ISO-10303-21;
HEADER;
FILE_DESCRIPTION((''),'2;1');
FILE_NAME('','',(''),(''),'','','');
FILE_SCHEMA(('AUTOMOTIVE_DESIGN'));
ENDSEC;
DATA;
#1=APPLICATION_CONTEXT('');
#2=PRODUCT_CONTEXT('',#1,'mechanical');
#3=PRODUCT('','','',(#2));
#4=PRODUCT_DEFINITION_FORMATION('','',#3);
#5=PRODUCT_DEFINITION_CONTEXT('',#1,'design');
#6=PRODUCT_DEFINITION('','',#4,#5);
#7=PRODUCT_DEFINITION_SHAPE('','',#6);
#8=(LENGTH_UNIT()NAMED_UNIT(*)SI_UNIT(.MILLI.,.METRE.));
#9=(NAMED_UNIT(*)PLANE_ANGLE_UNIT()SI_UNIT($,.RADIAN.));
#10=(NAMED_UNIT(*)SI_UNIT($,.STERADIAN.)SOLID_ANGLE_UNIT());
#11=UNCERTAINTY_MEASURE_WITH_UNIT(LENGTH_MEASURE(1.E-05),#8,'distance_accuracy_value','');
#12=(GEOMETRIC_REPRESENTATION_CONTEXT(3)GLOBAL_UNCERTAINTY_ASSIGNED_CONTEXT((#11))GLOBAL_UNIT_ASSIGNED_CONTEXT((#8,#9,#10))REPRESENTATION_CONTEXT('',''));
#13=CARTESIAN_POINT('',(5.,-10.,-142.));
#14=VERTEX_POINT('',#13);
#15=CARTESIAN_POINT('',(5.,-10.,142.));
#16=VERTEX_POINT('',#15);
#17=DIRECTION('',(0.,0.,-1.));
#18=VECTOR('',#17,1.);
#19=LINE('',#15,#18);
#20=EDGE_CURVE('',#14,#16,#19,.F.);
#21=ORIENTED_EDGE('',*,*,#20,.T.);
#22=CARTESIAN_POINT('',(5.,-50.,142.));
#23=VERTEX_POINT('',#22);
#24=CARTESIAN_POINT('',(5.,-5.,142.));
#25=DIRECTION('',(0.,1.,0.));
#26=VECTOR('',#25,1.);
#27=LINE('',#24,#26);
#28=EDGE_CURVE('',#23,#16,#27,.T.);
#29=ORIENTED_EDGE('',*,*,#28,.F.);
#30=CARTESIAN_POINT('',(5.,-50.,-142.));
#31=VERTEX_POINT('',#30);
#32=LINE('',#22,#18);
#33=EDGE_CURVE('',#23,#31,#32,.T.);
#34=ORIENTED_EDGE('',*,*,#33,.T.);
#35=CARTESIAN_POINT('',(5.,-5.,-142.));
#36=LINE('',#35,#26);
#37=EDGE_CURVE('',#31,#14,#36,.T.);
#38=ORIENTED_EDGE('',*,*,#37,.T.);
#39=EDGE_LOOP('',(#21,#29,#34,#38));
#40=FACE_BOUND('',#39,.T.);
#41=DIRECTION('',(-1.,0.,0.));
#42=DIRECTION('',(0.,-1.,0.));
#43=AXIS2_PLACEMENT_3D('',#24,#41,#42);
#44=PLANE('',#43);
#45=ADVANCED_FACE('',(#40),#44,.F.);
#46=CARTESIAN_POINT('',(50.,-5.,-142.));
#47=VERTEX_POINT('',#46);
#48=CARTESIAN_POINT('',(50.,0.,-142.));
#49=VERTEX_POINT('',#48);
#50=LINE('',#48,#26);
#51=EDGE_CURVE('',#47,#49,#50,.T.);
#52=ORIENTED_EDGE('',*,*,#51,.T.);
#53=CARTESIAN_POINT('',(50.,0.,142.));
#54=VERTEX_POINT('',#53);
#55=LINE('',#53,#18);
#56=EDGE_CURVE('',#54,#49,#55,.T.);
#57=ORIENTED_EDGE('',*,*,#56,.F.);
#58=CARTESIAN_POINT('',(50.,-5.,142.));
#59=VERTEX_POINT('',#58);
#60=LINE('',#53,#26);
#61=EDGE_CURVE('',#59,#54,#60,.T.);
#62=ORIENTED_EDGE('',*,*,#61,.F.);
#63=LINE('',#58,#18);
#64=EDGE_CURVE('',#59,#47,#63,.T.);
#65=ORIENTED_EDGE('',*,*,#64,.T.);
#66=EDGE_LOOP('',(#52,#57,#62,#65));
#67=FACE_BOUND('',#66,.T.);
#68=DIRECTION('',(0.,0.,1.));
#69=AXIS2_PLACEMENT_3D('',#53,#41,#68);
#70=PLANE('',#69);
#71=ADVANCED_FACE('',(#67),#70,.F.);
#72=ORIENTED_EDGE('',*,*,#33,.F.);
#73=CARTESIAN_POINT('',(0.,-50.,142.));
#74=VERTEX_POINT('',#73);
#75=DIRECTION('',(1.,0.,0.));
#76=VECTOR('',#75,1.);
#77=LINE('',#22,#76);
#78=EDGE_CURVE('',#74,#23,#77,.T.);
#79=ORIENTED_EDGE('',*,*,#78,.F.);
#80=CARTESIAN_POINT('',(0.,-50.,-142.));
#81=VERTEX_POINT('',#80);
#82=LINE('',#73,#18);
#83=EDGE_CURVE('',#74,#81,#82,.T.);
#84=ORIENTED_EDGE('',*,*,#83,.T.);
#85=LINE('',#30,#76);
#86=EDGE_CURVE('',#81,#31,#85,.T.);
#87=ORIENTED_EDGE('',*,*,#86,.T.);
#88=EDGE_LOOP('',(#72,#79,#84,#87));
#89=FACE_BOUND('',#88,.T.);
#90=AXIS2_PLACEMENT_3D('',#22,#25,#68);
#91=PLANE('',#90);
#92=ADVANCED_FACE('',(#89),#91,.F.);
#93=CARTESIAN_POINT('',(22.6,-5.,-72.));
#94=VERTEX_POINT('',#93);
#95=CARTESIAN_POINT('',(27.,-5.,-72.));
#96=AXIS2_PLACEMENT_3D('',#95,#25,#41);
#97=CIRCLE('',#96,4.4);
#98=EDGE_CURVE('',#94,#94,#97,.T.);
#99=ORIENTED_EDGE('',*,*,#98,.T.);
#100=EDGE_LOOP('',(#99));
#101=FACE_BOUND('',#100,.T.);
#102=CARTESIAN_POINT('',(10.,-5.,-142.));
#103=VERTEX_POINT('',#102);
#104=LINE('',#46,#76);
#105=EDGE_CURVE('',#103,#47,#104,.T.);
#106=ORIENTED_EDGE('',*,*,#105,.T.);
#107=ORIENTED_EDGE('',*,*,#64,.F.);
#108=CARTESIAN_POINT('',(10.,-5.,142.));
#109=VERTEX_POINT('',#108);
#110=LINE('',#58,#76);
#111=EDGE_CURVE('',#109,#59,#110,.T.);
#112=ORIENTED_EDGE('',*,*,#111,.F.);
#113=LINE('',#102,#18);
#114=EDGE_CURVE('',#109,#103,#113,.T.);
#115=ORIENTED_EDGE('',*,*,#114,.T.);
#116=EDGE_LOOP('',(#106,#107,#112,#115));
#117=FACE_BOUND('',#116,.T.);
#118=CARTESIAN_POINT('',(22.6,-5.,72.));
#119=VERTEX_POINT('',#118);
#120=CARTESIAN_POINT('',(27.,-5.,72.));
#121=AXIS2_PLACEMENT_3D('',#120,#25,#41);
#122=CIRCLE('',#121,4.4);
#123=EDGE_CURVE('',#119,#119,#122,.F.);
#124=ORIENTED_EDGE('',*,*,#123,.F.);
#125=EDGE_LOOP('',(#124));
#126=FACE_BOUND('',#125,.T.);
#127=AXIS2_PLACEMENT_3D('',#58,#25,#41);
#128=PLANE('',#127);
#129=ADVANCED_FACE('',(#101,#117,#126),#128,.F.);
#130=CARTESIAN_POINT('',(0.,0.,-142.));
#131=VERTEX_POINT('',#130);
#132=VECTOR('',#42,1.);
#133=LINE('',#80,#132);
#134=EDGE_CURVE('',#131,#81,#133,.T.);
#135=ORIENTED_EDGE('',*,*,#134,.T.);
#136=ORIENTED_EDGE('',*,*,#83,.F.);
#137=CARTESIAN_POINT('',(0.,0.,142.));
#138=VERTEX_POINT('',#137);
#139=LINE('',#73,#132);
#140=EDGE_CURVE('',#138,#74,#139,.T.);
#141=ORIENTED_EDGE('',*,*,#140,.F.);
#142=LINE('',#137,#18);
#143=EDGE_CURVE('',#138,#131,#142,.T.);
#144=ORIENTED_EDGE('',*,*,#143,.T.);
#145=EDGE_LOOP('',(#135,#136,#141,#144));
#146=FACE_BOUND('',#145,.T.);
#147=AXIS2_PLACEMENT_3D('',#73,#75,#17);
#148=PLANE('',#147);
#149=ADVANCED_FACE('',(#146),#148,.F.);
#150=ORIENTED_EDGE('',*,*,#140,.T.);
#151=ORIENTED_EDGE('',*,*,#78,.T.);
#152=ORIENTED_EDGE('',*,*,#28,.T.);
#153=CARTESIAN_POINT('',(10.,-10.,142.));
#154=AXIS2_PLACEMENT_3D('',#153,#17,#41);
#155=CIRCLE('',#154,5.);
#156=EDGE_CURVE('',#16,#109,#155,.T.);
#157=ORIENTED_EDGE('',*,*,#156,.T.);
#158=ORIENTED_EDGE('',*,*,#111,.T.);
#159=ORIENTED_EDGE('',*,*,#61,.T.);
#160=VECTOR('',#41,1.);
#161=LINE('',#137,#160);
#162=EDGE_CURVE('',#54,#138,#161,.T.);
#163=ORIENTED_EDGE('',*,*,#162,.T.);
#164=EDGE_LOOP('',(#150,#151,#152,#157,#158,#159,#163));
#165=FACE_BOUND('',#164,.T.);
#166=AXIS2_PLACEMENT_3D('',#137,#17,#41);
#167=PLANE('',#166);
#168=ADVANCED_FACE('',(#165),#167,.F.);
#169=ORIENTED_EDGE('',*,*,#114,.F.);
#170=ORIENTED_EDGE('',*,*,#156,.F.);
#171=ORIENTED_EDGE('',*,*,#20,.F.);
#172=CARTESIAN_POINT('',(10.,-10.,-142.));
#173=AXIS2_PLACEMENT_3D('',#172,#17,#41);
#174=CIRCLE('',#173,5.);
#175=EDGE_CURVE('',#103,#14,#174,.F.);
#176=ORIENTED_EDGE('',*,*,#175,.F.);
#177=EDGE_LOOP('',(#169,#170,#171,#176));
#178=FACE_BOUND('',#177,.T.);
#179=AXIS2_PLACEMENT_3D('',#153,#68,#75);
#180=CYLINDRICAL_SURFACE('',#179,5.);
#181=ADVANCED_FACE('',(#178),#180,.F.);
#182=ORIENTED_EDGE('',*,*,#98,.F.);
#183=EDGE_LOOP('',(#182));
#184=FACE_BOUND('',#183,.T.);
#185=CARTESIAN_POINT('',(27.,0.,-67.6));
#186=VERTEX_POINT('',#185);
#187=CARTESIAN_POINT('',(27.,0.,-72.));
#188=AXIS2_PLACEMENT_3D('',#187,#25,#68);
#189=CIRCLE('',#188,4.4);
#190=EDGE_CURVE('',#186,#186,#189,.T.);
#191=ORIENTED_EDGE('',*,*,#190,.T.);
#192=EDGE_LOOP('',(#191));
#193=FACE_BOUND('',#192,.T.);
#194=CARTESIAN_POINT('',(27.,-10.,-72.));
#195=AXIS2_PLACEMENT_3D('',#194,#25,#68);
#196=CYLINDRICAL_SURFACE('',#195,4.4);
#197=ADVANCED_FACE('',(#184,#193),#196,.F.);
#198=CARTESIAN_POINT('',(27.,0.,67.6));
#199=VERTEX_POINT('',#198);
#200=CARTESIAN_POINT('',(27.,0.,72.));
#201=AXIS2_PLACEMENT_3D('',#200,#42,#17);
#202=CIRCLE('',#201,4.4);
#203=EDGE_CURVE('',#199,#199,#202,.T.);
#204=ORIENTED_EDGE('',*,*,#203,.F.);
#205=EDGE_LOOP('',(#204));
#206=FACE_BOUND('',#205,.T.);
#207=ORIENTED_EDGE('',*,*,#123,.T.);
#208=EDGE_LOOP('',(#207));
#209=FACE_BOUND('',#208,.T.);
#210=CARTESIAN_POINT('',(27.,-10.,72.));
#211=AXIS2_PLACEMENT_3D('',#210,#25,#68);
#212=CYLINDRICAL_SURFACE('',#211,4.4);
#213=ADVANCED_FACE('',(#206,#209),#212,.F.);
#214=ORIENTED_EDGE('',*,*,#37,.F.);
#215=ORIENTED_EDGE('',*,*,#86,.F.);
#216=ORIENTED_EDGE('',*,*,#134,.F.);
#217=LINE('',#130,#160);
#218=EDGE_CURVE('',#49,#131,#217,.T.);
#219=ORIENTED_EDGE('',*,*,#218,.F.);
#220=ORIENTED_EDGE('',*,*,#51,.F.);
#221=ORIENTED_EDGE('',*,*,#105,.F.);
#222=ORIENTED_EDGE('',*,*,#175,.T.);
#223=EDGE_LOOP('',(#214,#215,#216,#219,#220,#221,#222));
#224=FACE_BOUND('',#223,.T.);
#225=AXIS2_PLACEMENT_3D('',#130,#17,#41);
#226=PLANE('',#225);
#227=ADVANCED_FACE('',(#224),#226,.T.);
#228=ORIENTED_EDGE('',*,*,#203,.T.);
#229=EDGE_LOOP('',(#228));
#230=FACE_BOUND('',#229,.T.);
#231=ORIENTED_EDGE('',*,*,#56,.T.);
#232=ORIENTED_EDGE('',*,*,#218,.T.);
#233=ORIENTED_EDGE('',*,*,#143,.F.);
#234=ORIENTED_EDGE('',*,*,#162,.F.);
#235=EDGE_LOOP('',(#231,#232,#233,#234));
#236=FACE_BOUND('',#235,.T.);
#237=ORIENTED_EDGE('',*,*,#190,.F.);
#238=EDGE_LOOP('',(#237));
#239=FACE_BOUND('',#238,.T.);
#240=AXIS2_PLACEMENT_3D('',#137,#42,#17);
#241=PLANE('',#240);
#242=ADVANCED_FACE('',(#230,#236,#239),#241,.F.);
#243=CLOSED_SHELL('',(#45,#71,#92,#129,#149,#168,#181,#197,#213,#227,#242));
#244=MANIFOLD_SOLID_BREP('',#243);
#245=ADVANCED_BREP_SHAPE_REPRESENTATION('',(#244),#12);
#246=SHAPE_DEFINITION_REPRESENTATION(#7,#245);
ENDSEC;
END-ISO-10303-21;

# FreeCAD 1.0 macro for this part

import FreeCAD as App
import Part
import Sketcher

V = App.Vector


def edges_at(feature, points):
    """Names of the edges that pass closest to the given points."""
    edges = feature.Shape.Edges
    near = lambda p: min(range(len(edges)), key=lambda i: edges[i].distToShape(Part.Vertex(*p))[0])
    return sorted({f"Edge{near(p) + 1}" for p in points})


def add_polygon(sketch, points):
    """Adds a closed chain of lines whose ends are joined by coincident constraints."""
    first, n = sketch.GeometryCount, len(points)
    for a, b in zip(points, points[1:] + points[:1]):
        sketch.addGeometry(Part.LineSegment(App.Vector(*a, 0), App.Vector(*b, 0)), False)
    for i in range(n):
        sketch.addConstraint(Sketcher.Constraint("Coincident", first + i, 2, first + (i + 1) % n, 1))

doc = App.newDocument("Part")
body = doc.addObject("PartDesign::Body", "Body")

# Sketch on XY plane
sketch1 = body.newObject("Sketcher::SketchObject", "Sketch")
sketch1.AttachmentSupport = (doc.getObject("XY_Plane"), [""])
sketch1.MapMode = "FlatFace"
add_polygon(sketch1, [(50, 0), (0, 0), (0, -50), (5, -50), (5, -5), (50, -5)])  # lines 0-5
sketch1.addConstraint(Sketcher.Constraint("Horizontal", 0))
sketch1.addConstraint(Sketcher.Constraint("Vertical", 1))
sketch1.addConstraint(Sketcher.Constraint("Horizontal", 2))
sketch1.addConstraint(Sketcher.Constraint("Vertical", 3))
sketch1.addConstraint(Sketcher.Constraint("Horizontal", 4))
sketch1.addConstraint(Sketcher.Constraint("Vertical", 5))
sketch1.addConstraint(Sketcher.Constraint("Coincident", 0, 2, -1, 1))
sketch1.addConstraint(Sketcher.Constraint("Equal", 0, 1))
sketch1.addConstraint(Sketcher.Constraint("Equal", 4, 3))
sketch1.addConstraint(Sketcher.Constraint("DistanceX", 0, 2, 0, 1, 50.0))
sketch1.addConstraint(Sketcher.Constraint("DistanceX", 2, 1, 2, 2, 5.0))
pad1 = body.newObject("PartDesign::Pad", "Pad")
pad1.Profile = sketch1
pad1.Length = 284
pad1.Midplane = True
doc.recompute()

fillet = body.newObject("PartDesign::Fillet", "Fillet")
fillet.Base = (pad1, edges_at(pad1, [(5, -5, 0)]))
fillet.Radius = 5

# Sketch on XZ plane
sketch2 = body.newObject("Sketcher::SketchObject", "Sketch001")
sketch2.AttachmentSupport = (doc.getObject("XZ_Plane"), [""])
sketch2.MapMode = "FlatFace"
sketch2.addGeometry(Part.Circle(V(27, -72, 0), V(0, 0, 1), 4.4), False)
sketch2.addConstraint(Sketcher.Constraint("Diameter", 0, 8.8))
sketch2.addConstraint(Sketcher.Constraint("DistanceX", -1, 1, 0, 3, 27.0))
sketch2.addConstraint(Sketcher.Constraint("DistanceY", 0, 3, -1, 1, 72.0))
pocket1 = body.newObject("PartDesign::Pocket", "Pocket")
pocket1.Profile = sketch2
pocket1.Length = 10
pocket1.Reversed = True
doc.recompute()

mirrored = body.newObject("PartDesign::Mirrored", "Mirrored")
mirrored.Originals = [pocket1]
mirrored.MirrorPlane = (doc.getObject("XY_Plane"), [""])
body.Tip = mirrored

doc.recompute()
